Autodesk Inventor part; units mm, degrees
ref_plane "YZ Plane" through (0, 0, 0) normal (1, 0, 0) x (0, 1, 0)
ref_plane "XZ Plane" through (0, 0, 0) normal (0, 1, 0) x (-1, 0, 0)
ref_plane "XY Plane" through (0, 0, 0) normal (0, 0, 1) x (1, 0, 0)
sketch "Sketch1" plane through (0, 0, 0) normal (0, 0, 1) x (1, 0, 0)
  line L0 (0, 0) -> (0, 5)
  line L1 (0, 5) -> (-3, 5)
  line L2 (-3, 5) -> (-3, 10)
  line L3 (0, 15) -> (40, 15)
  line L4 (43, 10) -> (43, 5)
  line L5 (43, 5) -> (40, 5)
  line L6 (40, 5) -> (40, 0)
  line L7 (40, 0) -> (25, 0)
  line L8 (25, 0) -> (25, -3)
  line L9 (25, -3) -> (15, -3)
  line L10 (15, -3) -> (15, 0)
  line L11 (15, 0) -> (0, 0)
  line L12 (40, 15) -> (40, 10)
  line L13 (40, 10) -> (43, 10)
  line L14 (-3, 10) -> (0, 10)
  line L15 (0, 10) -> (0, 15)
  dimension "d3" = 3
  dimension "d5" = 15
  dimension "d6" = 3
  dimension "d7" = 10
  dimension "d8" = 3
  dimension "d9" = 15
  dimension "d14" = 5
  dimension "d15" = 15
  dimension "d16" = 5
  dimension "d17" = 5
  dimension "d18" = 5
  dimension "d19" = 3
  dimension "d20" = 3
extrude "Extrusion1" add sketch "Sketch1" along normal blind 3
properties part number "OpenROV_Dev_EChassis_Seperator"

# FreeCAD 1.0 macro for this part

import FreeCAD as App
import Part
import Sketcher

V = App.Vector


def add_polygon(sketch, points):
    """Adds a closed chain of lines whose ends are joined by coincident constraints."""
    first, n = sketch.GeometryCount, len(points)
    for a, b in zip(points, points[1:] + points[:1]):
        sketch.addGeometry(Part.LineSegment(App.Vector(*a, 0), App.Vector(*b, 0)), False)
    for i in range(n):
        sketch.addConstraint(Sketcher.Constraint("Coincident", first + i, 2, first + (i + 1) % n, 1))

doc = App.newDocument("Part")
params = doc.addObject("Spreadsheet::Sheet", "Params")
for row, (alias, value) in enumerate([
    ("sketch1_width", "15 mm"),
    ("sketch1_width2", "10 mm"),
    ("sketch1_width3", "3 mm"),
    ("sketch1_height", "5 mm"),
    ("pad1_length", "3 mm"),
], start=1):
    params.set(f"A{row}", alias)
    params.set(f"B{row}", "=" + value)
    params.setAlias(f"B{row}", alias)

body = doc.addObject("PartDesign::Body", "Body")

# Sketch on XY plane
sketch1 = body.newObject("Sketcher::SketchObject", "Sketch")
sketch1.AttachmentSupport = (doc.getObject("XY_Plane"), [""])
sketch1.MapMode = "FlatFace"
add_polygon(sketch1, [(0, 5), (0, 0), (15, 0), (15, -3), (25, -3), (25, 0), (40, 0), (40, 5), (43, 5), (43, 10), (40, 10), (40, 15), (0, 15), (0, 10), (-3, 10), (-3, 5)])  # lines 0-15
sketch1.addConstraint([
    Sketcher.Constraint("Vertical", 0),
    Sketcher.Constraint("Horizontal", 1),
    Sketcher.Constraint("Vertical", 2),
    Sketcher.Constraint("Horizontal", 3),
    Sketcher.Constraint("Vertical", 4),
    Sketcher.Constraint("Horizontal", 5),
    Sketcher.Constraint("Vertical", 6),
    Sketcher.Constraint("Horizontal", 7),
    Sketcher.Constraint("Vertical", 8),
    Sketcher.Constraint("Horizontal", 9),
    Sketcher.Constraint("Vertical", 10),
    Sketcher.Constraint("Horizontal", 11),
    Sketcher.Constraint("Vertical", 12),
    Sketcher.Constraint("Horizontal", 13),
    Sketcher.Constraint("Vertical", 14),
    Sketcher.Constraint("Horizontal", 15),
    Sketcher.Constraint("Coincident", 0, 2, -1, 1),
    Sketcher.Constraint("PointOnObject", 4, 2, -1),
    Sketcher.Constraint("PointOnObject", 11, 2, -2),
    Sketcher.Constraint("Horizontal", 9, 2, 12, 2),
    Sketcher.Constraint("Horizontal", 7, 2, 14, 2),
    Sketcher.Constraint("Vertical", 6, 2, 9, 2),
    Sketcher.Constraint("Equal", 1, 5),
    Sketcher.Constraint("Equal", 9, 13),
    Sketcher.Constraint("Equal", 15, 2),
    Sketcher.Constraint("Equal", 6, 8),
    Sketcher.Constraint("Equal", 8, 10),
    Sketcher.Constraint("DistanceX", 1, 1, 1, 2, 15.0),
    Sketcher.Constraint("DistanceX", 3, 1, 3, 2, 10.0),
    Sketcher.Constraint("DistanceX", 7, 1, 7, 2, 3.0),
    Sketcher.Constraint("DistanceY", 0, 2, 0, 1, 5.0),
])
sketch1.setExpression("Constraints[43]", "Params.sketch1_width")
sketch1.setExpression("Constraints[44]", "Params.sketch1_width2")
sketch1.setExpression("Constraints[45]", "Params.sketch1_width3")
sketch1.setExpression("Constraints[46]", "Params.sketch1_height")
pad1 = body.newObject("PartDesign::Pad", "Pad")
pad1.Profile = sketch1
pad1.setExpression("Length", "Params.pad1_length")

doc.recompute()
